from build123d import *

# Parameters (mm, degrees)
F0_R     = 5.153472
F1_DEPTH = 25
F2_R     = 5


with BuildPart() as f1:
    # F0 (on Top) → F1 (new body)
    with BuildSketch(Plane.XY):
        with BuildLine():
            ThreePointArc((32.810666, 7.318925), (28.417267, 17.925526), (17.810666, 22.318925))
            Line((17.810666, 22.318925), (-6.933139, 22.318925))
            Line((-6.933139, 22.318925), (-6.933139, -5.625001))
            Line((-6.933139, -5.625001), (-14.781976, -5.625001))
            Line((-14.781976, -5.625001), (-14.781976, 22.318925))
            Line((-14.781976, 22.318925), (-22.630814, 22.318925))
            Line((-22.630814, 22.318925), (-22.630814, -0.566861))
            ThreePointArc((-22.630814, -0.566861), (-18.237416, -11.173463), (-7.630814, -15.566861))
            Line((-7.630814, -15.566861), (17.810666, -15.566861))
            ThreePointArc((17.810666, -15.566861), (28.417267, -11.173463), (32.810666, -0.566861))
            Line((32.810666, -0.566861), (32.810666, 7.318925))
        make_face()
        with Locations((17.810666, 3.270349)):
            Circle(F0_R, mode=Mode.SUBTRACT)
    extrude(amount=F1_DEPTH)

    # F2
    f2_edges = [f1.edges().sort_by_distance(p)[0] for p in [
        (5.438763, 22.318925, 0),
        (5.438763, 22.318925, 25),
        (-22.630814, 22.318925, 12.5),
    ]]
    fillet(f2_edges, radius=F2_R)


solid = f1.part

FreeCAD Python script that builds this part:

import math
import FreeCAD as App
import Part
import Sketcher
from FreeCAD import Vector


def edges_at(feature, points):
    """Names of the edges that pass closest to the given points."""
    edges = feature.Shape.Edges
    near = lambda p: min(range(len(edges)), key=lambda i: edges[i].distToShape(Part.Vertex(*p))[0])
    return sorted({f"Edge{near(p) + 1}" for p in points})

doc = App.newDocument("Part")
body = doc.addObject("PartDesign::Body", "Body")

sketch1 = body.newObject("Sketcher::SketchObject", "Sketch")
sketch1.AttachmentSupport = (doc.getObject("XY_Plane"), [""])
sketch1.MapMode = "FlatFace"
sketch1.addGeometry([
    Part.ArcOfCircle(Part.Circle(Vector(17.810664, 7.318923, 0), Vector(0, 0, 1), 15.000002), math.radians(0.000009), math.radians(89.999991)),
    Part.LineSegment(Vector(17.810666, 22.318925, 0), Vector(-6.933139, 22.318925, 0)),
    Part.LineSegment(Vector(-6.933139, 22.318925, 0), Vector(-6.933139, -5.625001, 0)),
    Part.LineSegment(Vector(-6.933139, -5.625001, 0), Vector(-14.781976, -5.625001, 0)),
    Part.LineSegment(Vector(-14.781976, -5.625001, 0), Vector(-14.781976, 22.318925, 0)),
    Part.LineSegment(Vector(-14.781976, 22.318925, 0), Vector(-22.630814, 22.318925, 0)),
    Part.LineSegment(Vector(-22.630814, 22.318925, 0), Vector(-22.630814, -0.566861, 0)),
    Part.ArcOfCircle(Part.Circle(Vector(-7.630815, -0.566862, 0), Vector(0, 0, 1), 14.999999), math.radians(179.999996), math.radians(270.000004)),
    Part.LineSegment(Vector(-7.630814, -15.566861, 0), Vector(17.810666, -15.566861, 0)),
    Part.ArcOfCircle(Part.Circle(Vector(17.810665, -0.56686, 0), Vector(0, 0, 1), 15.000001), math.radians(-89.999997), math.radians(-0.000003)),
    Part.LineSegment(Vector(32.810666, -0.566861, 0), Vector(32.810666, 7.318925, 0)),
    Part.Circle(Vector(17.810666, 3.270349, 0), Vector(0, 0, 1), 5.153472),
], False)
sketch1.addConstraint([
    Sketcher.Constraint("Tangent", 0, 2, 1, 1),
    Sketcher.Constraint("Coincident", 1, 2, 2, 1),
    Sketcher.Constraint("Coincident", 2, 2, 3, 1),
    Sketcher.Constraint("Coincident", 3, 2, 4, 1),
    Sketcher.Constraint("Coincident", 4, 2, 5, 1),
    Sketcher.Constraint("Coincident", 5, 2, 6, 1),
    Sketcher.Constraint("Tangent", 6, 2, 7, 1),
    Sketcher.Constraint("Tangent", 7, 2, 8, 1),
    Sketcher.Constraint("Tangent", 8, 2, 9, 1),
    Sketcher.Constraint("Tangent", 9, 2, 10, 1),
    Sketcher.Constraint("Tangent", 10, 2, 0, 1),
    Sketcher.Constraint("Horizontal", 1),
    Sketcher.Constraint("Vertical", 2),
    Sketcher.Constraint("Horizontal", 3),
    Sketcher.Constraint("Vertical", 4),
    Sketcher.Constraint("Horizontal", 5),
    Sketcher.Constraint("Vertical", 6),
    Sketcher.Constraint("Horizontal", 8),
    Sketcher.Constraint("Vertical", 10),
    Sketcher.Constraint("Equal", 7, 9),
    Sketcher.Constraint("Horizontal", 1, 2, 4, 2),
    Sketcher.Constraint("Vertical", 0, 3, 9, 3),
    Sketcher.Constraint("Vertical", 9, 3, 11, 3),
    Sketcher.Constraint("Equal", 3, 5),
    Sketcher.Constraint("Radius", 7, 14.999999),
    Sketcher.Constraint("Diameter", 11, 10.306944),
    Sketcher.Constraint("DistanceY", 2, 2, -1, 1, 5.625001),
    Sketcher.Constraint("DistanceX", 5, 2, 5, 1, 7.848838),
    Sketcher.Constraint("DistanceX", 8, 1, 8, 2, 25.44148),
    Sketcher.Constraint("DistanceY", 2, 2, 2, 1, 27.943926),
    Sketcher.Constraint("DistanceY", 6, 2, 6, 1, 22.885786),
    Sketcher.Constraint("DistanceY", -1, 1, 11, 3, 3.270349),
    Sketcher.Constraint("DistanceX", 1, 2, -1, 1, 6.933139),
])
pad1 = body.newObject("PartDesign::Pad", "Pad")
pad1.Profile = sketch1
pad1.Length = 25
doc.recompute()

fillet = body.newObject("PartDesign::Fillet", "Fillet")
fillet.Base = (pad1, edges_at(pad1, [(5.439, 22.319, 0), (5.439, 22.319, 25), (-22.631, 22.319, 12.5)]))
fillet.Radius = 5

doc.recompute()
